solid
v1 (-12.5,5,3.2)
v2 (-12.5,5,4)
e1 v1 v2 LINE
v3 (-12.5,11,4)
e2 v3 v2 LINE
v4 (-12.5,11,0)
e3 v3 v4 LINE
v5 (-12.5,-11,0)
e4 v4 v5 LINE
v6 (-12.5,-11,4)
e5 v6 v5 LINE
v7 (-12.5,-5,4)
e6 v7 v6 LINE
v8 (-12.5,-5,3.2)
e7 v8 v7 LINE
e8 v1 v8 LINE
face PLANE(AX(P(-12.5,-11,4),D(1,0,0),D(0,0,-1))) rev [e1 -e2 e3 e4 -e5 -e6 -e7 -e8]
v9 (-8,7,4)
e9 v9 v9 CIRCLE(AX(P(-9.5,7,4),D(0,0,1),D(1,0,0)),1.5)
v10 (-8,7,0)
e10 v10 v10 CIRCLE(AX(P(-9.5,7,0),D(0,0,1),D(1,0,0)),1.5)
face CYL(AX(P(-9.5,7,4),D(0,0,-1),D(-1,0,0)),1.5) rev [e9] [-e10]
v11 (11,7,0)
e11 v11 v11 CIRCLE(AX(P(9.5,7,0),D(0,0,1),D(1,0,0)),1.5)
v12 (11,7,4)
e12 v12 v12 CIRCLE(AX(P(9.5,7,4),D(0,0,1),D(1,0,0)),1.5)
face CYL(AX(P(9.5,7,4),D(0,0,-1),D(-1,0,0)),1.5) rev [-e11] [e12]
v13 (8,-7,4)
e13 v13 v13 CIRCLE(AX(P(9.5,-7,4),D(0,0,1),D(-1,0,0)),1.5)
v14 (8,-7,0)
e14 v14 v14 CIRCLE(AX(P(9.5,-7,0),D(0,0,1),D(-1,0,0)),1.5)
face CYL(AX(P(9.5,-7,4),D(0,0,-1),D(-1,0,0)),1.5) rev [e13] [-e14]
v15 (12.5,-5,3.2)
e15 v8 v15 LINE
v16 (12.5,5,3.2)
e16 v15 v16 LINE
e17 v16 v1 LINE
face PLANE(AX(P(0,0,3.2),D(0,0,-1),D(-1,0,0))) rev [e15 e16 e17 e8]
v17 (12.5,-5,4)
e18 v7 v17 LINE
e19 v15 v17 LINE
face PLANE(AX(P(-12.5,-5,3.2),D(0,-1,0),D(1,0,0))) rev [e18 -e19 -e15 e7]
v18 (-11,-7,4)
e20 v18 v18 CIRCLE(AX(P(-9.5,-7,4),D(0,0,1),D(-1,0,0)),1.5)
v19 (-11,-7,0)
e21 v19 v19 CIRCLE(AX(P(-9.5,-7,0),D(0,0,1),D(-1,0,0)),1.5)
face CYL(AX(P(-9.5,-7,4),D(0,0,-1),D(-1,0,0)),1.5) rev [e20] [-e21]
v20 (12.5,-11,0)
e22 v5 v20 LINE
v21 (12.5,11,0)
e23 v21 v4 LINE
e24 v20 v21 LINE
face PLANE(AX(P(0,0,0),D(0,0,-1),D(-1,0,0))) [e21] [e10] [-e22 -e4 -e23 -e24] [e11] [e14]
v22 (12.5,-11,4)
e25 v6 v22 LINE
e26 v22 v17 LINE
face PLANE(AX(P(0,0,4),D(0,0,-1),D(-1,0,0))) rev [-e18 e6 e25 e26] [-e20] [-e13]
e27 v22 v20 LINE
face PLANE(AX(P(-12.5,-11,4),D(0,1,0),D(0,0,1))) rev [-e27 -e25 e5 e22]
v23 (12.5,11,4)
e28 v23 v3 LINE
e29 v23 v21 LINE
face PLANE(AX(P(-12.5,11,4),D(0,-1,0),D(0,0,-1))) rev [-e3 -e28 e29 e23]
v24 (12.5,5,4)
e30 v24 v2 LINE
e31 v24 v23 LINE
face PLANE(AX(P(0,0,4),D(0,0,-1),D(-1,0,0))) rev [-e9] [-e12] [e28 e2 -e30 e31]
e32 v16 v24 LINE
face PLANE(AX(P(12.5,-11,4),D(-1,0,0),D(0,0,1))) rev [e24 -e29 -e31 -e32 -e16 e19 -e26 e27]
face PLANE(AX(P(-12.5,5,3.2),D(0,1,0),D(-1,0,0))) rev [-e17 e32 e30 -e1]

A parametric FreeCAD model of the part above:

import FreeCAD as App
import Part
import Sketcher

V = App.Vector


def add_polygon(sketch, points):
    """Adds a closed chain of lines whose ends are joined by coincident constraints."""
    first, n = sketch.GeometryCount, len(points)
    for a, b in zip(points, points[1:] + points[:1]):
        sketch.addGeometry(Part.LineSegment(App.Vector(*a, 0), App.Vector(*b, 0)), False)
    for i in range(n):
        sketch.addConstraint(Sketcher.Constraint("Coincident", first + i, 2, first + (i + 1) % n, 1))

doc = App.newDocument("Part")
body = doc.addObject("PartDesign::Body", "Body")

# Sketch on XY plane
sketch1 = body.newObject("Sketcher::SketchObject", "Sketch")
sketch1.AttachmentSupport = (doc.getObject("XY_Plane"), [""])
sketch1.MapMode = "FlatFace"
add_polygon(sketch1, [(-12.5, 11), (-12.5, -11), (12.5, -11), (12.5, 11)])  # lines 0-3
sketch1.addGeometry(Part.Circle(V(-9.5, -7, 0), V(0, 0, 1), 1.5), False)  # 4
sketch1.addGeometry(Part.Circle(V(9.5, -7, 0), V(0, 0, 1), 1.5), False)  # 5
sketch1.addGeometry(Part.Circle(V(-9.5, 7, 0), V(0, 0, 1), 1.5), False)  # 6
sketch1.addGeometry(Part.Circle(V(9.5, 7, 0), V(0, 0, 1), 1.5), False)  # 7
sketch1.addConstraint([
    Sketcher.Constraint("Vertical", 0),
    Sketcher.Constraint("Horizontal", 1),
    Sketcher.Constraint("Vertical", 2),
    Sketcher.Constraint("Horizontal", 3),
    Sketcher.Constraint("Equal", 4, 5),
    Sketcher.Constraint("Equal", 5, 6),
    Sketcher.Constraint("Equal", 6, 7),
    Sketcher.Constraint("Symmetric", 5, 3, 6, 3, -1, 1),
    Sketcher.Constraint("Symmetric", 4, 3, 7, 3, -1, 1),
    Sketcher.Constraint("Symmetric", 0, 2, 2, 2, -1, 1),
    Sketcher.Constraint("Symmetric", 4, 3, 5, 3, -2),
    Sketcher.Constraint("Diameter", 4, 3.0),
    Sketcher.Constraint("DistanceX", 1, 1, 1, 2, 25.0),
    Sketcher.Constraint("DistanceY", 0, 2, 0, 1, 22.0),
    Sketcher.Constraint("DistanceY", 4, 3, -1, 1, 7.0),
    Sketcher.Constraint("DistanceX", 4, 3, 5, 3, 19.0),
])
pad1 = body.newObject("PartDesign::Pad", "Pad")
pad1.Profile = sketch1
pad1.Length = 4

# Sketch on XY plane
sketch2 = body.newObject("Sketcher::SketchObject", "Sketch001")
sketch2.AttachmentSupport = (doc.getObject("XY_Plane"), [""])
sketch2.MapMode = "FlatFace"
sketch2.AttachmentOffset = App.Placement(V(0, 0, 4), App.Rotation())
add_polygon(sketch2, [(-12, 5), (-12, -5), (12, -5), (12, 5)])  # lines 0-3
sketch2.addConstraint([
    Sketcher.Constraint("Vertical", 0),
    Sketcher.Constraint("Horizontal", 1),
    Sketcher.Constraint("Vertical", 2),
    Sketcher.Constraint("Horizontal", 3),
    Sketcher.Constraint("Symmetric", 0, 2, 2, 2, -1, 1),
    Sketcher.Constraint("DistanceX", 1, 1, 1, 2, 25.0),
    Sketcher.Constraint("DistanceY", 0, 2, 0, 1, 10.0),
])
pocket1 = body.newObject("PartDesign::Pocket", "Pocket")
pocket1.Profile = sketch2
pocket1.Length = 0.8

doc.recompute()
